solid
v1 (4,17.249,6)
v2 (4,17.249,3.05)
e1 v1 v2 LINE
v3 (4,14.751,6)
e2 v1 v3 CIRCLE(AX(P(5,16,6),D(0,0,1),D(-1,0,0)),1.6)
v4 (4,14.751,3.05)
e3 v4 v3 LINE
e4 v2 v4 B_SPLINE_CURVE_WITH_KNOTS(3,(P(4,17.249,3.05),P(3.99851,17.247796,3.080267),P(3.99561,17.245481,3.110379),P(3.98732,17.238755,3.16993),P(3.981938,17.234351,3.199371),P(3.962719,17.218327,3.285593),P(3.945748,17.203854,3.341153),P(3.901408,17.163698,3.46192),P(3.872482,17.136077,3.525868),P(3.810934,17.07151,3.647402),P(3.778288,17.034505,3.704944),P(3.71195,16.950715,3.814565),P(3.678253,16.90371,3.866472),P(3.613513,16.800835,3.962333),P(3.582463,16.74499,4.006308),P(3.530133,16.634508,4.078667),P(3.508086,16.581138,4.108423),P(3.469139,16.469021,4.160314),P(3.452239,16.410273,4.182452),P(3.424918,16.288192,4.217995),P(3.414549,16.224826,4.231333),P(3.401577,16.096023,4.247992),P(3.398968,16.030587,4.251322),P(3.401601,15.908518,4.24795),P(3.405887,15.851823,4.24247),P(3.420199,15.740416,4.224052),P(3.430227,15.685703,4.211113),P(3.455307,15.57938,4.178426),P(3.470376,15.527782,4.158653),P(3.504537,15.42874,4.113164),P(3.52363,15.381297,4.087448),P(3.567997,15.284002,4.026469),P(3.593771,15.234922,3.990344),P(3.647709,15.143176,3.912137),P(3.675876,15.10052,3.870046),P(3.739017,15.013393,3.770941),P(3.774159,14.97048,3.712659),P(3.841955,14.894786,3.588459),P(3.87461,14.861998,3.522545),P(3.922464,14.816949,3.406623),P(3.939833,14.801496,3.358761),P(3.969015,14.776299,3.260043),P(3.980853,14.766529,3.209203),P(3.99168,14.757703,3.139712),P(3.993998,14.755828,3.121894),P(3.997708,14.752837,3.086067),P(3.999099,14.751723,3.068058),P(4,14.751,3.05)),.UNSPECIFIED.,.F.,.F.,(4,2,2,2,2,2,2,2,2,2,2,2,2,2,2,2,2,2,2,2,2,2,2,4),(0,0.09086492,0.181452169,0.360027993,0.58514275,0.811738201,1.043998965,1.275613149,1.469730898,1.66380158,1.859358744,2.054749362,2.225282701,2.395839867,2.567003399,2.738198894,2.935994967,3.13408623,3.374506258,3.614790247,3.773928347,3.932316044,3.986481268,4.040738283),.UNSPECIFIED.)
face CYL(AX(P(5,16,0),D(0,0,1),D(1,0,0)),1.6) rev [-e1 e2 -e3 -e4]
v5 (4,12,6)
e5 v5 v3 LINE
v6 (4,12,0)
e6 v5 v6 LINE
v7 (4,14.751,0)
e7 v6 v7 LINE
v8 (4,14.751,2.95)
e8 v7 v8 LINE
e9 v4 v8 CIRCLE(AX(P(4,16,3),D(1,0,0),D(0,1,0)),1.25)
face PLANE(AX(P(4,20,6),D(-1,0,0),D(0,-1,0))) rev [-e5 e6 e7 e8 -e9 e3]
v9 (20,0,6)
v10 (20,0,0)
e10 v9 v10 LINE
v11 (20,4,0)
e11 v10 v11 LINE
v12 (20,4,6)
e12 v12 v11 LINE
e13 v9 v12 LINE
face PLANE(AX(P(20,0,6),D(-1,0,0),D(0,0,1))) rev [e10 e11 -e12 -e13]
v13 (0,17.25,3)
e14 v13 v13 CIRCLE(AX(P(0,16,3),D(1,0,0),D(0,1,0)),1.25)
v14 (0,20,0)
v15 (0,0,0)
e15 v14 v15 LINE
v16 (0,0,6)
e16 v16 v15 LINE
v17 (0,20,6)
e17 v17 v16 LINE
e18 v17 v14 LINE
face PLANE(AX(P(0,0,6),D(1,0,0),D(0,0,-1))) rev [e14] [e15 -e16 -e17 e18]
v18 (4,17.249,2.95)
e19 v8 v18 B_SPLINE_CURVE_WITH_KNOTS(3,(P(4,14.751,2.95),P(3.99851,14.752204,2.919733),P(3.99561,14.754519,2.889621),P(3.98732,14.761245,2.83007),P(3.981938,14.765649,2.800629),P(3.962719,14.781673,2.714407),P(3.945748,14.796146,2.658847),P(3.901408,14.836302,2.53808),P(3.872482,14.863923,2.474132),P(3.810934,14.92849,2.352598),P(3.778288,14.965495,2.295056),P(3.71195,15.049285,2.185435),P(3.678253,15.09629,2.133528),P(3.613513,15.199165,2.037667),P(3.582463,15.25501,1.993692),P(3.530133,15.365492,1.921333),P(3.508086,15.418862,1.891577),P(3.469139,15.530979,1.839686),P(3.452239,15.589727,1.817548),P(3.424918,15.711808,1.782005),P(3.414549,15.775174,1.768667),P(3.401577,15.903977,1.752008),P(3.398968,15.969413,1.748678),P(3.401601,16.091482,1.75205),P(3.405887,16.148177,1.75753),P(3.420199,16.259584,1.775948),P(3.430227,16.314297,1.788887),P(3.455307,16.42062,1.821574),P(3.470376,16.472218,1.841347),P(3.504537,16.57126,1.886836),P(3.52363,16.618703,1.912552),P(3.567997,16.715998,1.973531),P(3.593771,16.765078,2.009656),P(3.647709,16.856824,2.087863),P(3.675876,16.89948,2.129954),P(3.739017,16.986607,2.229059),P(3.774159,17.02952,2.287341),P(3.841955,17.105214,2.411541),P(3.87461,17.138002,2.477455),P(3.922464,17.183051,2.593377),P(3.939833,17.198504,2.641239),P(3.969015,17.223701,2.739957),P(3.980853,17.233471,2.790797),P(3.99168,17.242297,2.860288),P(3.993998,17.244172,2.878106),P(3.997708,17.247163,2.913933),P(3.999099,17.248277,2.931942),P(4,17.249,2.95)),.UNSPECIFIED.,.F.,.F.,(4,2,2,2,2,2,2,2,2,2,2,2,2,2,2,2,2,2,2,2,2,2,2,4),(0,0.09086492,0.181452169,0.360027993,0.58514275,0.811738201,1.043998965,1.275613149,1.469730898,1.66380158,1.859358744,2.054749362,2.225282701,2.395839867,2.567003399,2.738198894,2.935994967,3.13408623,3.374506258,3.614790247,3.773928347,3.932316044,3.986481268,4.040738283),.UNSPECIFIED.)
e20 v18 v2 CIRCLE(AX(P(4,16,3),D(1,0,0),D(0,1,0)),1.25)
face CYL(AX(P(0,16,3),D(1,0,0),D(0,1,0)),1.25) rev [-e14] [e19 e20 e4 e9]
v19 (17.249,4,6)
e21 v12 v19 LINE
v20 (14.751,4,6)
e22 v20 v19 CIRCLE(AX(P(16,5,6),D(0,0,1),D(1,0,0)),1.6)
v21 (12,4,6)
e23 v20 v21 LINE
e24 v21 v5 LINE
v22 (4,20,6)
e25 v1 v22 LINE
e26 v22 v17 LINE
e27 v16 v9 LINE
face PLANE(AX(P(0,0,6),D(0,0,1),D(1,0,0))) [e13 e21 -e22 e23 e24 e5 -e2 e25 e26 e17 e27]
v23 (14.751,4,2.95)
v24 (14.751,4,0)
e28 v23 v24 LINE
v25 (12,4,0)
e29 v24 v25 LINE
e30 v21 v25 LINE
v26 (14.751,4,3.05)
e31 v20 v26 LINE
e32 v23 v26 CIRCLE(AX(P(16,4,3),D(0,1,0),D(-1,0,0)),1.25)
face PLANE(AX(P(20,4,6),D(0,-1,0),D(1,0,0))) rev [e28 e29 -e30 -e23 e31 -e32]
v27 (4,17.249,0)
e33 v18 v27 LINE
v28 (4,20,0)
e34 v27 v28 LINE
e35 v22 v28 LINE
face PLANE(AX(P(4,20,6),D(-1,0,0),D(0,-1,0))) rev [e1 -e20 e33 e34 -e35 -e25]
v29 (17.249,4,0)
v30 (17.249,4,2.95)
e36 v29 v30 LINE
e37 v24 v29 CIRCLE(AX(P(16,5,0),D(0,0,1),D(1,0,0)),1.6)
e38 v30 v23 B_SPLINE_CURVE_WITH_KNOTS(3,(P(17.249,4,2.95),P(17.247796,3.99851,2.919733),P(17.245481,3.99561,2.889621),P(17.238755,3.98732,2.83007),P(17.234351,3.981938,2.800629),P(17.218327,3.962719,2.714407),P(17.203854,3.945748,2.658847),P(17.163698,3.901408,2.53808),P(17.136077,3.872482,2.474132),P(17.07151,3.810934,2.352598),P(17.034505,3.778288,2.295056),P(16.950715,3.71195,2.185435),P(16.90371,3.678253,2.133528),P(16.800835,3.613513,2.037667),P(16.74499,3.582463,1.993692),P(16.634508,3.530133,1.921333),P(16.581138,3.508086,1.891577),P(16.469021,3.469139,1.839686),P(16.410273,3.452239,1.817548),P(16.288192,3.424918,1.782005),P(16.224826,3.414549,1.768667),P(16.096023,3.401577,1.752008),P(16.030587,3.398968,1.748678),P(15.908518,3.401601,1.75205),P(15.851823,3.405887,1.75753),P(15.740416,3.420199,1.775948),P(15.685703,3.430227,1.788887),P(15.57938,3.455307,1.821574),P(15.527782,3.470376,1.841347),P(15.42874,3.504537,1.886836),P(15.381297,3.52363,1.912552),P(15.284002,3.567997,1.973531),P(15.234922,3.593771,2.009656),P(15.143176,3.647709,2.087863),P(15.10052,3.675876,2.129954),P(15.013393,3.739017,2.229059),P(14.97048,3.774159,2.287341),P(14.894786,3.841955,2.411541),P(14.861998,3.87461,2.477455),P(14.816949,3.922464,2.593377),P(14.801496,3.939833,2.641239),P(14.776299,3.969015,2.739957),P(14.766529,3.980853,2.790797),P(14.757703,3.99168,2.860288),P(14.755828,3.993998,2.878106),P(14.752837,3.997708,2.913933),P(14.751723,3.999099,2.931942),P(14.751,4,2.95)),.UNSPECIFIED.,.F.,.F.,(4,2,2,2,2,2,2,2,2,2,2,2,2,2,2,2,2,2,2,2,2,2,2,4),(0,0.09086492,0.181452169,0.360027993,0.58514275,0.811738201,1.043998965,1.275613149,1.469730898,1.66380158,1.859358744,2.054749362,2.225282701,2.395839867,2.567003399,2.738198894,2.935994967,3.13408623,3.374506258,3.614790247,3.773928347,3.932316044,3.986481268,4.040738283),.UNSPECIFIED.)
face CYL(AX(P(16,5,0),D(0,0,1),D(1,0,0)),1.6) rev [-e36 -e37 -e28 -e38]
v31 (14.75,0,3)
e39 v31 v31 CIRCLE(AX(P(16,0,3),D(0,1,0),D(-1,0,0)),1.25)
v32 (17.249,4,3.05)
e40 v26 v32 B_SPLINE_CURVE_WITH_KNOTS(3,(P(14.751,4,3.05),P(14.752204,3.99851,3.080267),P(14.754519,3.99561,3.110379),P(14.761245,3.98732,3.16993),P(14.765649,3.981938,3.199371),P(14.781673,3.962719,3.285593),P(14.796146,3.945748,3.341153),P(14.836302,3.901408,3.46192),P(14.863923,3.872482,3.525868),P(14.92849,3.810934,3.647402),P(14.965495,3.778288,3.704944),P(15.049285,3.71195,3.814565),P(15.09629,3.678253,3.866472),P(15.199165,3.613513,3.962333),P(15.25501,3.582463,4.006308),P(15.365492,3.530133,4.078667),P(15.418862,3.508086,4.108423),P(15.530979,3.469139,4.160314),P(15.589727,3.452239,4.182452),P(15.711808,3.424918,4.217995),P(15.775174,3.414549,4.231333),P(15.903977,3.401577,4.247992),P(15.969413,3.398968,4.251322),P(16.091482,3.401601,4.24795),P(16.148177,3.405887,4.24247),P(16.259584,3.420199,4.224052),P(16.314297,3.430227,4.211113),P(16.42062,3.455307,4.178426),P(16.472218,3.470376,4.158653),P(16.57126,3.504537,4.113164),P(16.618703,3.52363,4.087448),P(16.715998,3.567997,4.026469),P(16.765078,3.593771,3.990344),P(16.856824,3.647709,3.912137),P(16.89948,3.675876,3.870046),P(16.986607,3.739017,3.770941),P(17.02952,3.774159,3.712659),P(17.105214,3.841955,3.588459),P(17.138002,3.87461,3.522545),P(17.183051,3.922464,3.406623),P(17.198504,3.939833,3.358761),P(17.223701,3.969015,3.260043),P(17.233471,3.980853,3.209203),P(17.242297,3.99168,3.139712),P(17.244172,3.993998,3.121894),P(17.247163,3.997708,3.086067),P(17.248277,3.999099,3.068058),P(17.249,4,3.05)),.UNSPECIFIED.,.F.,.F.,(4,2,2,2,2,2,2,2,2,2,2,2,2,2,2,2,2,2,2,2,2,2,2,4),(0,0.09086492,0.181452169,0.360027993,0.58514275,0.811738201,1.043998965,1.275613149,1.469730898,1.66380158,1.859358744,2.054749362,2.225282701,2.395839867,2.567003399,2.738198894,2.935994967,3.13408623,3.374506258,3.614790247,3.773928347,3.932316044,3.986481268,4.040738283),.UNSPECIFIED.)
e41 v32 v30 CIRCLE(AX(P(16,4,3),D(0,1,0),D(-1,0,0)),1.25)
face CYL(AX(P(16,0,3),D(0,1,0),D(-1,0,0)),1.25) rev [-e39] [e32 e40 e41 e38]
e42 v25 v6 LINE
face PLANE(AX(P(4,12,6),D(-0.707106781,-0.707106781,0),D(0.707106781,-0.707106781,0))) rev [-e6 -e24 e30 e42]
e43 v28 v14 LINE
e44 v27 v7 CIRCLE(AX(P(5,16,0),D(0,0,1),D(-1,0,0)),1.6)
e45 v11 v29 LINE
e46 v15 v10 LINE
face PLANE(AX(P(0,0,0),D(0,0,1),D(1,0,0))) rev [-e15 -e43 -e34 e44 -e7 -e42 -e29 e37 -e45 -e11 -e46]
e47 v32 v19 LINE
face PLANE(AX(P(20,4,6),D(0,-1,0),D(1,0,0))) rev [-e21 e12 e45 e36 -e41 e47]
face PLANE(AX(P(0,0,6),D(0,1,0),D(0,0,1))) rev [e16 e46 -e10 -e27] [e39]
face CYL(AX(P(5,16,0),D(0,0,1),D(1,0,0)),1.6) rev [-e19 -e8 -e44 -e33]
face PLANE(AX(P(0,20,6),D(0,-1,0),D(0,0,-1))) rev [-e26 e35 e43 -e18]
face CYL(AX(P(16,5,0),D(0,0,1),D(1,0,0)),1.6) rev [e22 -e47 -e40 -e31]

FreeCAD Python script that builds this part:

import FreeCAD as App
import Part
import Sketcher

doc = App.newDocument("Part")
body = doc.addObject("PartDesign::Body", "Body")

# Sketch on XY plane
sketch1 = body.newObject("Sketcher::SketchObject", "Sketch")
sketch1.AttachmentSupport = (doc.getObject("XY_Plane"), [""])
sketch1.MapMode = "FlatFace"
sketch1.addGeometry(Part.LineSegment(App.Vector(0, 20, 0), App.Vector(0, 0, 0)), False)
sketch1.addGeometry(Part.LineSegment(App.Vector(0, 0, 0), App.Vector(20, 0, 0)), False)
sketch1.addGeometry(Part.LineSegment(App.Vector(20, 0, 0), App.Vector(20, 4, 0)), False)
sketch1.addGeometry(Part.LineSegment(App.Vector(20, 4, 0), App.Vector(12, 4, 0)), False)
sketch1.addGeometry(Part.LineSegment(App.Vector(12, 4, 0), App.Vector(4, 12, 0)), False)
sketch1.addGeometry(Part.LineSegment(App.Vector(4, 12, 0), App.Vector(4, 20, 0)), False)
sketch1.addGeometry(Part.LineSegment(App.Vector(4, 20, 0), App.Vector(0, 20, 0)), False)
sketch1.addConstraint(Sketcher.Constraint("Coincident", 0, 2, 1, 1))
sketch1.addConstraint(Sketcher.Constraint("Coincident", 1, 2, 2, 1))
sketch1.addConstraint(Sketcher.Constraint("Coincident", 2, 2, 3, 1))
sketch1.addConstraint(Sketcher.Constraint("Coincident", 3, 2, 4, 1))
sketch1.addConstraint(Sketcher.Constraint("Coincident", 4, 2, 5, 1))
sketch1.addConstraint(Sketcher.Constraint("Coincident", 5, 2, 6, 1))
sketch1.addConstraint(Sketcher.Constraint("Coincident", 6, 2, 0, 1))
sketch1.addConstraint(Sketcher.Constraint("Vertical", 0))
sketch1.addConstraint(Sketcher.Constraint("Horizontal", 1))
sketch1.addConstraint(Sketcher.Constraint("Vertical", 2))
sketch1.addConstraint(Sketcher.Constraint("Horizontal", 3))
sketch1.addConstraint(Sketcher.Constraint("Vertical", 5))
sketch1.addConstraint(Sketcher.Constraint("Horizontal", 6))
sketch1.addConstraint(Sketcher.Constraint("Coincident", 0, 2, -1, 1))
sketch1.addConstraint(Sketcher.Constraint("Equal", 1, 0))
sketch1.addConstraint(Sketcher.Constraint("Equal", 6, 2))
sketch1.addConstraint(Sketcher.Constraint("Equal", 3, 5))
sketch1.addConstraint(Sketcher.Constraint("DistanceX", 1, 1, 1, 2, 20.0))
sketch1.addConstraint(Sketcher.Constraint("DistanceX", 3, 2, 3, 1, 8.0))
sketch1.addConstraint(Sketcher.Constraint("DistanceX", 6, 2, 6, 1, 4.0))
pad1 = body.newObject("PartDesign::Pad", "Pad")
pad1.Profile = sketch1
pad1.Length = 6

# Sketch on XZ plane
sketch2 = body.newObject("Sketcher::SketchObject", "Sketch001")
sketch2.AttachmentSupport = (doc.getObject("XZ_Plane"), [""])
sketch2.MapMode = "FlatFace"
sketch2.AttachmentOffset = App.Placement(App.Vector(0, 0, -4), App.Rotation())
sketch2.addGeometry(Part.Circle(App.Vector(16, 3, 0), App.Vector(0, 0, 1), 1.2), False)
sketch2.addConstraint(Sketcher.Constraint("Diameter", 0, 2.5))
sketch2.addConstraint(Sketcher.Constraint("DistanceX", -1, 1, 0, 3, 16.0))
sketch2.addConstraint(Sketcher.Constraint("DistanceY", -1, 1, 0, 3, 3.0))
pocket1 = body.newObject("PartDesign::Pocket", "Pocket")
pocket1.Profile = sketch2
pocket1.Length = 4
pocket1.Reversed = True

# Sketch on YZ plane
sketch3 = body.newObject("Sketcher::SketchObject", "Sketch002")
sketch3.AttachmentSupport = (doc.getObject("YZ_Plane"), [""])
sketch3.MapMode = "FlatFace"
sketch3.AttachmentOffset = App.Placement(App.Vector(0, 0, 4), App.Rotation())
sketch3.addGeometry(Part.Circle(App.Vector(16, 3, 0), App.Vector(0, 0, 1), 1.2), False)
sketch3.addConstraint(Sketcher.Constraint("Diameter", 0, 2.5))
sketch3.addConstraint(Sketcher.Constraint("DistanceX", -1, 1, 0, 3, 16.0))
sketch3.addConstraint(Sketcher.Constraint("DistanceY", -1, 1, 0, 3, 3.0))
pocket2 = body.newObject("PartDesign::Pocket", "Pocket001")
pocket2.Profile = sketch3
pocket2.Length = 4

# Sketch on XY plane
sketch4 = body.newObject("Sketcher::SketchObject", "Sketch003")
sketch4.AttachmentSupport = (doc.getObject("XY_Plane"), [""])
sketch4.MapMode = "FlatFace"
sketch4.AttachmentOffset = App.Placement(App.Vector(0, 0, 6), App.Rotation())
sketch4.addGeometry(Part.Circle(App.Vector(16, 5, 0), App.Vector(0, 0, 1), 1.6), False)
sketch4.addGeometry(Part.Circle(App.Vector(5, 16, 0), App.Vector(0, 0, 1), 1.6), False)
sketch4.addConstraint(Sketcher.Constraint("Equal", 0, 1))
sketch4.addConstraint(Sketcher.Constraint("Diameter", 0, 3.2))
sketch4.addConstraint(Sketcher.Constraint("DistanceX", -1, 1, 0, 3, 16.0))
sketch4.addConstraint(Sketcher.Constraint("DistanceY", -1, 1, 0, 3, 5.0))
sketch4.addConstraint(Sketcher.Constraint("DistanceX", -1, 1, 1, 3, 5.0))
sketch4.addConstraint(Sketcher.Constraint("DistanceY", -1, 1, 1, 3, 16.0))
pocket3 = body.newObject("PartDesign::Pocket", "Pocket002")
pocket3.Profile = sketch4
pocket3.Length = 6

doc.recompute()
